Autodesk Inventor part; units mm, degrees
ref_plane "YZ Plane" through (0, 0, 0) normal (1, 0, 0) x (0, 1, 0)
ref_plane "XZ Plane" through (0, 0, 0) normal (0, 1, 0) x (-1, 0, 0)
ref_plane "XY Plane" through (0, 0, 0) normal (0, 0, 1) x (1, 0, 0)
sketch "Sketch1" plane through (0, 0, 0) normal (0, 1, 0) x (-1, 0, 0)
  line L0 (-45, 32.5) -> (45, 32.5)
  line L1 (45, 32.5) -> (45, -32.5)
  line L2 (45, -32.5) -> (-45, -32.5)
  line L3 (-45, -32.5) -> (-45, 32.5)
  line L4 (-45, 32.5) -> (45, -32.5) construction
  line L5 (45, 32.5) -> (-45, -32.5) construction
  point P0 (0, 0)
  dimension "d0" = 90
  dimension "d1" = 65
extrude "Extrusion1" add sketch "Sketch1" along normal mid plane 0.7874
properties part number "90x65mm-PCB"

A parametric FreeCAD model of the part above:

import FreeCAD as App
import Part
import Sketcher

V = App.Vector

doc = App.newDocument("Part")
body = doc.addObject("PartDesign::Body", "Body")

# Sketch on XZ plane
sketch1 = doc.addObject("Sketcher::SketchObject", "Sketch")
body.addObject(sketch1)
sketch1.AttachmentSupport = (doc.XZ_Plane, [""])
sketch1.MapMode = "FlatFace"
sketch1.addGeometry([
    Part.LineSegment(V(-45, 32, 0), V(45, 32, 0)),
    Part.LineSegment(V(45, 32, 0), V(45, -32, 0)),
    Part.LineSegment(V(45, -32, 0), V(-45, -32, 0)),
    Part.LineSegment(V(-45, -32, 0), V(-45, 32, 0)),
], False)
sketch1.addConstraint([
    Sketcher.Constraint("Coincident", 0, 2, 1, 1),
    Sketcher.Constraint("Coincident", 1, 2, 2, 1),
    Sketcher.Constraint("Coincident", 2, 2, 3, 1),
    Sketcher.Constraint("Coincident", 3, 2, 0, 1),
    Sketcher.Constraint("Horizontal", 0),
    Sketcher.Constraint("Vertical", 1),
    Sketcher.Constraint("Horizontal", 2),
    Sketcher.Constraint("Vertical", 3),
    Sketcher.Constraint("Symmetric", 0, 2, 2, 2, -1, 1),
    Sketcher.Constraint("DistanceX", 0, 1, 0, 2, 90.0),
    Sketcher.Constraint("DistanceY", 1, 2, 1, 1, 65.0),
])
pad1 = doc.addObject("PartDesign::Pad", "Pad")
body.addObject(pad1)
pad1.Profile = sketch1
pad1.Length = 0.7874
pad1.Midplane = True

doc.recompute()
